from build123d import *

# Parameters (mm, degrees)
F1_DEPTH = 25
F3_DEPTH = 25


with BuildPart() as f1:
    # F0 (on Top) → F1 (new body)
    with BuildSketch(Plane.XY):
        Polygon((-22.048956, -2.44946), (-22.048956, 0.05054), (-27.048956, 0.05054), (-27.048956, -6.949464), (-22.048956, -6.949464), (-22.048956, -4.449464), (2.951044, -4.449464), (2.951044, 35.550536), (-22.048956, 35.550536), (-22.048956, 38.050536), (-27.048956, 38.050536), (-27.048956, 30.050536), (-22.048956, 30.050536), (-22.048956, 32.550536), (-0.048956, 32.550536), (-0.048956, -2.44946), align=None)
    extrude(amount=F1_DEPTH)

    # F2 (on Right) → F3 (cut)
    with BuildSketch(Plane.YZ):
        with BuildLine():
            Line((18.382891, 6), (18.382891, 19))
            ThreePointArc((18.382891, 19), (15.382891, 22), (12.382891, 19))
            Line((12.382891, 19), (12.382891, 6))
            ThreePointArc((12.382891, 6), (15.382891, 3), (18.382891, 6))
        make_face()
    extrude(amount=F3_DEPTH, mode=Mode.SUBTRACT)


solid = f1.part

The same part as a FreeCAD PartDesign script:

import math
import FreeCAD as App
import Part
import Sketcher
from FreeCAD import Vector

doc = App.newDocument("Part")
params = doc.addObject("Spreadsheet::Sheet", "Params")
for row, (alias, value) in enumerate([
    ("sketch1_width", "5 mm"),
    ("sketch1_width2", "25 mm"),
    ("sketch1_width3", "22 mm"),
    ("sketch1_height", "40 mm"),
    ("sketch1_height2", "8 mm"),
    ("pad1_length", "25 mm"),
    ("sketch2_radius", "3 mm"),
    ("sketch2_height", "13 mm"),
    ("pocket1_length", "25 mm"),
], start=1):
    params.set(f"A{row}", alias)
    params.set(f"B{row}", "=" + value)
    params.setAlias(f"B{row}", alias)

body = doc.addObject("PartDesign::Body", "Body")

# Sketch on XY plane
sketch1 = doc.addObject("Sketcher::SketchObject", "Sketch")
body.addObject(sketch1)
sketch1.AttachmentSupport = (doc.XY_Plane, [""])
sketch1.MapMode = "FlatFace"
sketch1.addGeometry(Part.LineSegment(Vector(-22.048956, -2.44946, 0), Vector(-22.048956, 0.05054, 0)), False)
sketch1.addGeometry(Part.LineSegment(Vector(-22.048956, 0.05054, 0), Vector(-27.048956, 0.05054, 0)), False)
sketch1.addGeometry(Part.LineSegment(Vector(-27.048956, 0.05054, 0), Vector(-27.048956, -6.949464, 0)), False)
sketch1.addGeometry(Part.LineSegment(Vector(-27.048956, -6.949464, 0), Vector(-22.048956, -6.949464, 0)), False)
sketch1.addGeometry(Part.LineSegment(Vector(-22.048956, -6.949464, 0), Vector(-22.048956, -4.449464, 0)), False)
sketch1.addGeometry(Part.LineSegment(Vector(-22.048956, -4.449464, 0), Vector(2.951044, -4.449464, 0)), False)
sketch1.addGeometry(Part.LineSegment(Vector(2.951044, -4.449464, 0), Vector(2.951044, 35.550536, 0)), False)
sketch1.addGeometry(Part.LineSegment(Vector(2.951044, 35.550536, 0), Vector(-22.048956, 35.550536, 0)), False)
sketch1.addGeometry(Part.LineSegment(Vector(-22.048956, 35.550536, 0), Vector(-22.048956, 38.050536, 0)), False)
sketch1.addGeometry(Part.LineSegment(Vector(-22.048956, 38.050536, 0), Vector(-27.048956, 38.050536, 0)), False)
sketch1.addGeometry(Part.LineSegment(Vector(-27.048956, 38.050536, 0), Vector(-27.048956, 30.050536, 0)), False)
sketch1.addGeometry(Part.LineSegment(Vector(-27.048956, 30.050536, 0), Vector(-22.048956, 30.050536, 0)), False)
sketch1.addGeometry(Part.LineSegment(Vector(-22.048956, 30.050536, 0), Vector(-22.048956, 32.550536, 0)), False)
sketch1.addGeometry(Part.LineSegment(Vector(-22.048956, 32.550536, 0), Vector(-0.048956, 32.550536, 0)), False)
sketch1.addGeometry(Part.LineSegment(Vector(-0.048956, 32.550536, 0), Vector(-0.048956, -2.44946, 0)), False)
sketch1.addGeometry(Part.LineSegment(Vector(-0.048956, -2.44946, 0), Vector(-22.048956, -2.44946, 0)), False)
sketch1.addConstraint(Sketcher.Constraint("Coincident", 0, 2, 1, 1))
sketch1.addConstraint(Sketcher.Constraint("Coincident", 1, 2, 2, 1))
sketch1.addConstraint(Sketcher.Constraint("Coincident", 2, 2, 3, 1))
sketch1.addConstraint(Sketcher.Constraint("Coincident", 3, 2, 4, 1))
sketch1.addConstraint(Sketcher.Constraint("Coincident", 4, 2, 5, 1))
sketch1.addConstraint(Sketcher.Constraint("Coincident", 5, 2, 6, 1))
sketch1.addConstraint(Sketcher.Constraint("Coincident", 6, 2, 7, 1))
sketch1.addConstraint(Sketcher.Constraint("Coincident", 7, 2, 8, 1))
sketch1.addConstraint(Sketcher.Constraint("Coincident", 8, 2, 9, 1))
sketch1.addConstraint(Sketcher.Constraint("Coincident", 9, 2, 10, 1))
sketch1.addConstraint(Sketcher.Constraint("Coincident", 10, 2, 11, 1))
sketch1.addConstraint(Sketcher.Constraint("Coincident", 11, 2, 12, 1))
sketch1.addConstraint(Sketcher.Constraint("Coincident", 12, 2, 13, 1))
sketch1.addConstraint(Sketcher.Constraint("Coincident", 13, 2, 14, 1))
sketch1.addConstraint(Sketcher.Constraint("Coincident", 14, 2, 15, 1))
sketch1.addConstraint(Sketcher.Constraint("Coincident", 15, 2, 0, 1))
sketch1.addConstraint(Sketcher.Constraint("Vertical", 0))
sketch1.addConstraint(Sketcher.Constraint("Horizontal", 1))
sketch1.addConstraint(Sketcher.Constraint("Vertical", 2))
sketch1.addConstraint(Sketcher.Constraint("Horizontal", 3))
sketch1.addConstraint(Sketcher.Constraint("Vertical", 4))
sketch1.addConstraint(Sketcher.Constraint("Horizontal", 5))
sketch1.addConstraint(Sketcher.Constraint("Vertical", 6))
sketch1.addConstraint(Sketcher.Constraint("Horizontal", 7))
sketch1.addConstraint(Sketcher.Constraint("Vertical", 8))
sketch1.addConstraint(Sketcher.Constraint("Horizontal", 9))
sketch1.addConstraint(Sketcher.Constraint("Vertical", 10))
sketch1.addConstraint(Sketcher.Constraint("Horizontal", 11))
sketch1.addConstraint(Sketcher.Constraint("Vertical", 12))
sketch1.addConstraint(Sketcher.Constraint("Horizontal", 13))
sketch1.addConstraint(Sketcher.Constraint("Vertical", 14))
sketch1.addConstraint(Sketcher.Constraint("Horizontal", 15))
sketch1.addConstraint(Sketcher.Constraint("Vertical", 0, 2, 3, 2))
sketch1.addConstraint(Sketcher.Constraint("Vertical", 4, 2, 7, 2))
sketch1.addConstraint(Sketcher.Constraint("Vertical", 2, 2, 9, 2))
sketch1.addConstraint(Sketcher.Constraint("Vertical", 8, 2, 11, 2))
sketch1.addConstraint(Sketcher.Constraint("Equal", 0, 4))
sketch1.addConstraint(Sketcher.Constraint("Equal", 4, 8))
sketch1.addConstraint(Sketcher.Constraint("Equal", 8, 12))
sketch1.addConstraint(Sketcher.Constraint("DistanceX", 1, 2, 1, 1, 5.0))
sketch1.addConstraint(Sketcher.Constraint("DistanceX", 5, 1, 5, 2, 25.0))
sketch1.addConstraint(Sketcher.Constraint("DistanceX", 13, 1, 13, 2, 22.0))
sketch1.addConstraint(Sketcher.Constraint("DistanceY", 6, 1, 6, 2, 40.0))
sketch1.addConstraint(Sketcher.Constraint("DistanceY", 10, 2, 10, 1, 8.0))
sketch1.addConstraint(Sketcher.Constraint("DistanceY", 0, 1, 0, 2, 2.5))
sketch1.addConstraint(Sketcher.Constraint("DistanceY", 2, 2, 2, 1, 7.000004))
sketch1.addConstraint(Sketcher.Constraint("DistanceY", -1, 1, 0, 2, 0.05054))
sketch1.addConstraint(Sketcher.Constraint("DistanceX", 0, 2, -1, 1, 22.048956))
sketch1.setExpression("Constraints[39]", "Params.sketch1_width")
sketch1.setExpression("Constraints[40]", "Params.sketch1_width2")
sketch1.setExpression("Constraints[41]", "Params.sketch1_width3")
sketch1.setExpression("Constraints[42]", "Params.sketch1_height")
sketch1.setExpression("Constraints[43]", "Params.sketch1_height2")
pad1 = doc.addObject("PartDesign::Pad", "Pad")
body.addObject(pad1)
pad1.Profile = sketch1
pad1.setExpression("Length", "Params.pad1_length")

# Sketch on YZ plane
sketch2 = doc.addObject("Sketcher::SketchObject", "Sketch001")
body.addObject(sketch2)
sketch2.AttachmentSupport = (doc.YZ_Plane, [""])
sketch2.MapMode = "FlatFace"
sketch2.addGeometry(Part.LineSegment(Vector(18.382891, 6, 0), Vector(18.382891, 19, 0)), False)
sketch2.addGeometry(Part.ArcOfCircle(Part.Circle(Vector(15.382891, 19, 0), Vector(0, 0, 1), 3), math.radians(0), math.radians(180)), False)
sketch2.addGeometry(Part.LineSegment(Vector(12.382891, 19, 0), Vector(12.382891, 6, 0)), False)
sketch2.addGeometry(Part.ArcOfCircle(Part.Circle(Vector(15.382891, 6, 0), Vector(0, 0, 1), 3), math.radians(180), math.radians(360)), False)
sketch2.addConstraint(Sketcher.Constraint("Tangent", 0, 2, 1, 1))
sketch2.addConstraint(Sketcher.Constraint("Tangent", 1, 2, 2, 1))
sketch2.addConstraint(Sketcher.Constraint("Tangent", 2, 2, 3, 1))
sketch2.addConstraint(Sketcher.Constraint("Tangent", 3, 2, 0, 1))
sketch2.addConstraint(Sketcher.Constraint("Vertical", 0))
sketch2.addConstraint(Sketcher.Constraint("Vertical", 2))
sketch2.addConstraint(Sketcher.Constraint("Radius", 1, 3.0))
sketch2.addConstraint(Sketcher.Constraint("DistanceY", 0, 1, 0, 2, 13.0))
sketch2.addConstraint(Sketcher.Constraint("DistanceY", -1, 1, 1, 3, 19.0))
sketch2.addConstraint(Sketcher.Constraint("DistanceX", -1, 1, 1, 3, 15.382891))
sketch2.setExpression("Constraints[6]", "Params.sketch2_radius")
sketch2.setExpression("Constraints[7]", "Params.sketch2_height")
pocket1 = doc.addObject("PartDesign::Pocket", "Pocket")
body.addObject(pocket1)
pocket1.Profile = sketch2
pocket1.setExpression("Length", "Params.pocket1_length")
pocket1.Reversed = True

doc.recompute()
